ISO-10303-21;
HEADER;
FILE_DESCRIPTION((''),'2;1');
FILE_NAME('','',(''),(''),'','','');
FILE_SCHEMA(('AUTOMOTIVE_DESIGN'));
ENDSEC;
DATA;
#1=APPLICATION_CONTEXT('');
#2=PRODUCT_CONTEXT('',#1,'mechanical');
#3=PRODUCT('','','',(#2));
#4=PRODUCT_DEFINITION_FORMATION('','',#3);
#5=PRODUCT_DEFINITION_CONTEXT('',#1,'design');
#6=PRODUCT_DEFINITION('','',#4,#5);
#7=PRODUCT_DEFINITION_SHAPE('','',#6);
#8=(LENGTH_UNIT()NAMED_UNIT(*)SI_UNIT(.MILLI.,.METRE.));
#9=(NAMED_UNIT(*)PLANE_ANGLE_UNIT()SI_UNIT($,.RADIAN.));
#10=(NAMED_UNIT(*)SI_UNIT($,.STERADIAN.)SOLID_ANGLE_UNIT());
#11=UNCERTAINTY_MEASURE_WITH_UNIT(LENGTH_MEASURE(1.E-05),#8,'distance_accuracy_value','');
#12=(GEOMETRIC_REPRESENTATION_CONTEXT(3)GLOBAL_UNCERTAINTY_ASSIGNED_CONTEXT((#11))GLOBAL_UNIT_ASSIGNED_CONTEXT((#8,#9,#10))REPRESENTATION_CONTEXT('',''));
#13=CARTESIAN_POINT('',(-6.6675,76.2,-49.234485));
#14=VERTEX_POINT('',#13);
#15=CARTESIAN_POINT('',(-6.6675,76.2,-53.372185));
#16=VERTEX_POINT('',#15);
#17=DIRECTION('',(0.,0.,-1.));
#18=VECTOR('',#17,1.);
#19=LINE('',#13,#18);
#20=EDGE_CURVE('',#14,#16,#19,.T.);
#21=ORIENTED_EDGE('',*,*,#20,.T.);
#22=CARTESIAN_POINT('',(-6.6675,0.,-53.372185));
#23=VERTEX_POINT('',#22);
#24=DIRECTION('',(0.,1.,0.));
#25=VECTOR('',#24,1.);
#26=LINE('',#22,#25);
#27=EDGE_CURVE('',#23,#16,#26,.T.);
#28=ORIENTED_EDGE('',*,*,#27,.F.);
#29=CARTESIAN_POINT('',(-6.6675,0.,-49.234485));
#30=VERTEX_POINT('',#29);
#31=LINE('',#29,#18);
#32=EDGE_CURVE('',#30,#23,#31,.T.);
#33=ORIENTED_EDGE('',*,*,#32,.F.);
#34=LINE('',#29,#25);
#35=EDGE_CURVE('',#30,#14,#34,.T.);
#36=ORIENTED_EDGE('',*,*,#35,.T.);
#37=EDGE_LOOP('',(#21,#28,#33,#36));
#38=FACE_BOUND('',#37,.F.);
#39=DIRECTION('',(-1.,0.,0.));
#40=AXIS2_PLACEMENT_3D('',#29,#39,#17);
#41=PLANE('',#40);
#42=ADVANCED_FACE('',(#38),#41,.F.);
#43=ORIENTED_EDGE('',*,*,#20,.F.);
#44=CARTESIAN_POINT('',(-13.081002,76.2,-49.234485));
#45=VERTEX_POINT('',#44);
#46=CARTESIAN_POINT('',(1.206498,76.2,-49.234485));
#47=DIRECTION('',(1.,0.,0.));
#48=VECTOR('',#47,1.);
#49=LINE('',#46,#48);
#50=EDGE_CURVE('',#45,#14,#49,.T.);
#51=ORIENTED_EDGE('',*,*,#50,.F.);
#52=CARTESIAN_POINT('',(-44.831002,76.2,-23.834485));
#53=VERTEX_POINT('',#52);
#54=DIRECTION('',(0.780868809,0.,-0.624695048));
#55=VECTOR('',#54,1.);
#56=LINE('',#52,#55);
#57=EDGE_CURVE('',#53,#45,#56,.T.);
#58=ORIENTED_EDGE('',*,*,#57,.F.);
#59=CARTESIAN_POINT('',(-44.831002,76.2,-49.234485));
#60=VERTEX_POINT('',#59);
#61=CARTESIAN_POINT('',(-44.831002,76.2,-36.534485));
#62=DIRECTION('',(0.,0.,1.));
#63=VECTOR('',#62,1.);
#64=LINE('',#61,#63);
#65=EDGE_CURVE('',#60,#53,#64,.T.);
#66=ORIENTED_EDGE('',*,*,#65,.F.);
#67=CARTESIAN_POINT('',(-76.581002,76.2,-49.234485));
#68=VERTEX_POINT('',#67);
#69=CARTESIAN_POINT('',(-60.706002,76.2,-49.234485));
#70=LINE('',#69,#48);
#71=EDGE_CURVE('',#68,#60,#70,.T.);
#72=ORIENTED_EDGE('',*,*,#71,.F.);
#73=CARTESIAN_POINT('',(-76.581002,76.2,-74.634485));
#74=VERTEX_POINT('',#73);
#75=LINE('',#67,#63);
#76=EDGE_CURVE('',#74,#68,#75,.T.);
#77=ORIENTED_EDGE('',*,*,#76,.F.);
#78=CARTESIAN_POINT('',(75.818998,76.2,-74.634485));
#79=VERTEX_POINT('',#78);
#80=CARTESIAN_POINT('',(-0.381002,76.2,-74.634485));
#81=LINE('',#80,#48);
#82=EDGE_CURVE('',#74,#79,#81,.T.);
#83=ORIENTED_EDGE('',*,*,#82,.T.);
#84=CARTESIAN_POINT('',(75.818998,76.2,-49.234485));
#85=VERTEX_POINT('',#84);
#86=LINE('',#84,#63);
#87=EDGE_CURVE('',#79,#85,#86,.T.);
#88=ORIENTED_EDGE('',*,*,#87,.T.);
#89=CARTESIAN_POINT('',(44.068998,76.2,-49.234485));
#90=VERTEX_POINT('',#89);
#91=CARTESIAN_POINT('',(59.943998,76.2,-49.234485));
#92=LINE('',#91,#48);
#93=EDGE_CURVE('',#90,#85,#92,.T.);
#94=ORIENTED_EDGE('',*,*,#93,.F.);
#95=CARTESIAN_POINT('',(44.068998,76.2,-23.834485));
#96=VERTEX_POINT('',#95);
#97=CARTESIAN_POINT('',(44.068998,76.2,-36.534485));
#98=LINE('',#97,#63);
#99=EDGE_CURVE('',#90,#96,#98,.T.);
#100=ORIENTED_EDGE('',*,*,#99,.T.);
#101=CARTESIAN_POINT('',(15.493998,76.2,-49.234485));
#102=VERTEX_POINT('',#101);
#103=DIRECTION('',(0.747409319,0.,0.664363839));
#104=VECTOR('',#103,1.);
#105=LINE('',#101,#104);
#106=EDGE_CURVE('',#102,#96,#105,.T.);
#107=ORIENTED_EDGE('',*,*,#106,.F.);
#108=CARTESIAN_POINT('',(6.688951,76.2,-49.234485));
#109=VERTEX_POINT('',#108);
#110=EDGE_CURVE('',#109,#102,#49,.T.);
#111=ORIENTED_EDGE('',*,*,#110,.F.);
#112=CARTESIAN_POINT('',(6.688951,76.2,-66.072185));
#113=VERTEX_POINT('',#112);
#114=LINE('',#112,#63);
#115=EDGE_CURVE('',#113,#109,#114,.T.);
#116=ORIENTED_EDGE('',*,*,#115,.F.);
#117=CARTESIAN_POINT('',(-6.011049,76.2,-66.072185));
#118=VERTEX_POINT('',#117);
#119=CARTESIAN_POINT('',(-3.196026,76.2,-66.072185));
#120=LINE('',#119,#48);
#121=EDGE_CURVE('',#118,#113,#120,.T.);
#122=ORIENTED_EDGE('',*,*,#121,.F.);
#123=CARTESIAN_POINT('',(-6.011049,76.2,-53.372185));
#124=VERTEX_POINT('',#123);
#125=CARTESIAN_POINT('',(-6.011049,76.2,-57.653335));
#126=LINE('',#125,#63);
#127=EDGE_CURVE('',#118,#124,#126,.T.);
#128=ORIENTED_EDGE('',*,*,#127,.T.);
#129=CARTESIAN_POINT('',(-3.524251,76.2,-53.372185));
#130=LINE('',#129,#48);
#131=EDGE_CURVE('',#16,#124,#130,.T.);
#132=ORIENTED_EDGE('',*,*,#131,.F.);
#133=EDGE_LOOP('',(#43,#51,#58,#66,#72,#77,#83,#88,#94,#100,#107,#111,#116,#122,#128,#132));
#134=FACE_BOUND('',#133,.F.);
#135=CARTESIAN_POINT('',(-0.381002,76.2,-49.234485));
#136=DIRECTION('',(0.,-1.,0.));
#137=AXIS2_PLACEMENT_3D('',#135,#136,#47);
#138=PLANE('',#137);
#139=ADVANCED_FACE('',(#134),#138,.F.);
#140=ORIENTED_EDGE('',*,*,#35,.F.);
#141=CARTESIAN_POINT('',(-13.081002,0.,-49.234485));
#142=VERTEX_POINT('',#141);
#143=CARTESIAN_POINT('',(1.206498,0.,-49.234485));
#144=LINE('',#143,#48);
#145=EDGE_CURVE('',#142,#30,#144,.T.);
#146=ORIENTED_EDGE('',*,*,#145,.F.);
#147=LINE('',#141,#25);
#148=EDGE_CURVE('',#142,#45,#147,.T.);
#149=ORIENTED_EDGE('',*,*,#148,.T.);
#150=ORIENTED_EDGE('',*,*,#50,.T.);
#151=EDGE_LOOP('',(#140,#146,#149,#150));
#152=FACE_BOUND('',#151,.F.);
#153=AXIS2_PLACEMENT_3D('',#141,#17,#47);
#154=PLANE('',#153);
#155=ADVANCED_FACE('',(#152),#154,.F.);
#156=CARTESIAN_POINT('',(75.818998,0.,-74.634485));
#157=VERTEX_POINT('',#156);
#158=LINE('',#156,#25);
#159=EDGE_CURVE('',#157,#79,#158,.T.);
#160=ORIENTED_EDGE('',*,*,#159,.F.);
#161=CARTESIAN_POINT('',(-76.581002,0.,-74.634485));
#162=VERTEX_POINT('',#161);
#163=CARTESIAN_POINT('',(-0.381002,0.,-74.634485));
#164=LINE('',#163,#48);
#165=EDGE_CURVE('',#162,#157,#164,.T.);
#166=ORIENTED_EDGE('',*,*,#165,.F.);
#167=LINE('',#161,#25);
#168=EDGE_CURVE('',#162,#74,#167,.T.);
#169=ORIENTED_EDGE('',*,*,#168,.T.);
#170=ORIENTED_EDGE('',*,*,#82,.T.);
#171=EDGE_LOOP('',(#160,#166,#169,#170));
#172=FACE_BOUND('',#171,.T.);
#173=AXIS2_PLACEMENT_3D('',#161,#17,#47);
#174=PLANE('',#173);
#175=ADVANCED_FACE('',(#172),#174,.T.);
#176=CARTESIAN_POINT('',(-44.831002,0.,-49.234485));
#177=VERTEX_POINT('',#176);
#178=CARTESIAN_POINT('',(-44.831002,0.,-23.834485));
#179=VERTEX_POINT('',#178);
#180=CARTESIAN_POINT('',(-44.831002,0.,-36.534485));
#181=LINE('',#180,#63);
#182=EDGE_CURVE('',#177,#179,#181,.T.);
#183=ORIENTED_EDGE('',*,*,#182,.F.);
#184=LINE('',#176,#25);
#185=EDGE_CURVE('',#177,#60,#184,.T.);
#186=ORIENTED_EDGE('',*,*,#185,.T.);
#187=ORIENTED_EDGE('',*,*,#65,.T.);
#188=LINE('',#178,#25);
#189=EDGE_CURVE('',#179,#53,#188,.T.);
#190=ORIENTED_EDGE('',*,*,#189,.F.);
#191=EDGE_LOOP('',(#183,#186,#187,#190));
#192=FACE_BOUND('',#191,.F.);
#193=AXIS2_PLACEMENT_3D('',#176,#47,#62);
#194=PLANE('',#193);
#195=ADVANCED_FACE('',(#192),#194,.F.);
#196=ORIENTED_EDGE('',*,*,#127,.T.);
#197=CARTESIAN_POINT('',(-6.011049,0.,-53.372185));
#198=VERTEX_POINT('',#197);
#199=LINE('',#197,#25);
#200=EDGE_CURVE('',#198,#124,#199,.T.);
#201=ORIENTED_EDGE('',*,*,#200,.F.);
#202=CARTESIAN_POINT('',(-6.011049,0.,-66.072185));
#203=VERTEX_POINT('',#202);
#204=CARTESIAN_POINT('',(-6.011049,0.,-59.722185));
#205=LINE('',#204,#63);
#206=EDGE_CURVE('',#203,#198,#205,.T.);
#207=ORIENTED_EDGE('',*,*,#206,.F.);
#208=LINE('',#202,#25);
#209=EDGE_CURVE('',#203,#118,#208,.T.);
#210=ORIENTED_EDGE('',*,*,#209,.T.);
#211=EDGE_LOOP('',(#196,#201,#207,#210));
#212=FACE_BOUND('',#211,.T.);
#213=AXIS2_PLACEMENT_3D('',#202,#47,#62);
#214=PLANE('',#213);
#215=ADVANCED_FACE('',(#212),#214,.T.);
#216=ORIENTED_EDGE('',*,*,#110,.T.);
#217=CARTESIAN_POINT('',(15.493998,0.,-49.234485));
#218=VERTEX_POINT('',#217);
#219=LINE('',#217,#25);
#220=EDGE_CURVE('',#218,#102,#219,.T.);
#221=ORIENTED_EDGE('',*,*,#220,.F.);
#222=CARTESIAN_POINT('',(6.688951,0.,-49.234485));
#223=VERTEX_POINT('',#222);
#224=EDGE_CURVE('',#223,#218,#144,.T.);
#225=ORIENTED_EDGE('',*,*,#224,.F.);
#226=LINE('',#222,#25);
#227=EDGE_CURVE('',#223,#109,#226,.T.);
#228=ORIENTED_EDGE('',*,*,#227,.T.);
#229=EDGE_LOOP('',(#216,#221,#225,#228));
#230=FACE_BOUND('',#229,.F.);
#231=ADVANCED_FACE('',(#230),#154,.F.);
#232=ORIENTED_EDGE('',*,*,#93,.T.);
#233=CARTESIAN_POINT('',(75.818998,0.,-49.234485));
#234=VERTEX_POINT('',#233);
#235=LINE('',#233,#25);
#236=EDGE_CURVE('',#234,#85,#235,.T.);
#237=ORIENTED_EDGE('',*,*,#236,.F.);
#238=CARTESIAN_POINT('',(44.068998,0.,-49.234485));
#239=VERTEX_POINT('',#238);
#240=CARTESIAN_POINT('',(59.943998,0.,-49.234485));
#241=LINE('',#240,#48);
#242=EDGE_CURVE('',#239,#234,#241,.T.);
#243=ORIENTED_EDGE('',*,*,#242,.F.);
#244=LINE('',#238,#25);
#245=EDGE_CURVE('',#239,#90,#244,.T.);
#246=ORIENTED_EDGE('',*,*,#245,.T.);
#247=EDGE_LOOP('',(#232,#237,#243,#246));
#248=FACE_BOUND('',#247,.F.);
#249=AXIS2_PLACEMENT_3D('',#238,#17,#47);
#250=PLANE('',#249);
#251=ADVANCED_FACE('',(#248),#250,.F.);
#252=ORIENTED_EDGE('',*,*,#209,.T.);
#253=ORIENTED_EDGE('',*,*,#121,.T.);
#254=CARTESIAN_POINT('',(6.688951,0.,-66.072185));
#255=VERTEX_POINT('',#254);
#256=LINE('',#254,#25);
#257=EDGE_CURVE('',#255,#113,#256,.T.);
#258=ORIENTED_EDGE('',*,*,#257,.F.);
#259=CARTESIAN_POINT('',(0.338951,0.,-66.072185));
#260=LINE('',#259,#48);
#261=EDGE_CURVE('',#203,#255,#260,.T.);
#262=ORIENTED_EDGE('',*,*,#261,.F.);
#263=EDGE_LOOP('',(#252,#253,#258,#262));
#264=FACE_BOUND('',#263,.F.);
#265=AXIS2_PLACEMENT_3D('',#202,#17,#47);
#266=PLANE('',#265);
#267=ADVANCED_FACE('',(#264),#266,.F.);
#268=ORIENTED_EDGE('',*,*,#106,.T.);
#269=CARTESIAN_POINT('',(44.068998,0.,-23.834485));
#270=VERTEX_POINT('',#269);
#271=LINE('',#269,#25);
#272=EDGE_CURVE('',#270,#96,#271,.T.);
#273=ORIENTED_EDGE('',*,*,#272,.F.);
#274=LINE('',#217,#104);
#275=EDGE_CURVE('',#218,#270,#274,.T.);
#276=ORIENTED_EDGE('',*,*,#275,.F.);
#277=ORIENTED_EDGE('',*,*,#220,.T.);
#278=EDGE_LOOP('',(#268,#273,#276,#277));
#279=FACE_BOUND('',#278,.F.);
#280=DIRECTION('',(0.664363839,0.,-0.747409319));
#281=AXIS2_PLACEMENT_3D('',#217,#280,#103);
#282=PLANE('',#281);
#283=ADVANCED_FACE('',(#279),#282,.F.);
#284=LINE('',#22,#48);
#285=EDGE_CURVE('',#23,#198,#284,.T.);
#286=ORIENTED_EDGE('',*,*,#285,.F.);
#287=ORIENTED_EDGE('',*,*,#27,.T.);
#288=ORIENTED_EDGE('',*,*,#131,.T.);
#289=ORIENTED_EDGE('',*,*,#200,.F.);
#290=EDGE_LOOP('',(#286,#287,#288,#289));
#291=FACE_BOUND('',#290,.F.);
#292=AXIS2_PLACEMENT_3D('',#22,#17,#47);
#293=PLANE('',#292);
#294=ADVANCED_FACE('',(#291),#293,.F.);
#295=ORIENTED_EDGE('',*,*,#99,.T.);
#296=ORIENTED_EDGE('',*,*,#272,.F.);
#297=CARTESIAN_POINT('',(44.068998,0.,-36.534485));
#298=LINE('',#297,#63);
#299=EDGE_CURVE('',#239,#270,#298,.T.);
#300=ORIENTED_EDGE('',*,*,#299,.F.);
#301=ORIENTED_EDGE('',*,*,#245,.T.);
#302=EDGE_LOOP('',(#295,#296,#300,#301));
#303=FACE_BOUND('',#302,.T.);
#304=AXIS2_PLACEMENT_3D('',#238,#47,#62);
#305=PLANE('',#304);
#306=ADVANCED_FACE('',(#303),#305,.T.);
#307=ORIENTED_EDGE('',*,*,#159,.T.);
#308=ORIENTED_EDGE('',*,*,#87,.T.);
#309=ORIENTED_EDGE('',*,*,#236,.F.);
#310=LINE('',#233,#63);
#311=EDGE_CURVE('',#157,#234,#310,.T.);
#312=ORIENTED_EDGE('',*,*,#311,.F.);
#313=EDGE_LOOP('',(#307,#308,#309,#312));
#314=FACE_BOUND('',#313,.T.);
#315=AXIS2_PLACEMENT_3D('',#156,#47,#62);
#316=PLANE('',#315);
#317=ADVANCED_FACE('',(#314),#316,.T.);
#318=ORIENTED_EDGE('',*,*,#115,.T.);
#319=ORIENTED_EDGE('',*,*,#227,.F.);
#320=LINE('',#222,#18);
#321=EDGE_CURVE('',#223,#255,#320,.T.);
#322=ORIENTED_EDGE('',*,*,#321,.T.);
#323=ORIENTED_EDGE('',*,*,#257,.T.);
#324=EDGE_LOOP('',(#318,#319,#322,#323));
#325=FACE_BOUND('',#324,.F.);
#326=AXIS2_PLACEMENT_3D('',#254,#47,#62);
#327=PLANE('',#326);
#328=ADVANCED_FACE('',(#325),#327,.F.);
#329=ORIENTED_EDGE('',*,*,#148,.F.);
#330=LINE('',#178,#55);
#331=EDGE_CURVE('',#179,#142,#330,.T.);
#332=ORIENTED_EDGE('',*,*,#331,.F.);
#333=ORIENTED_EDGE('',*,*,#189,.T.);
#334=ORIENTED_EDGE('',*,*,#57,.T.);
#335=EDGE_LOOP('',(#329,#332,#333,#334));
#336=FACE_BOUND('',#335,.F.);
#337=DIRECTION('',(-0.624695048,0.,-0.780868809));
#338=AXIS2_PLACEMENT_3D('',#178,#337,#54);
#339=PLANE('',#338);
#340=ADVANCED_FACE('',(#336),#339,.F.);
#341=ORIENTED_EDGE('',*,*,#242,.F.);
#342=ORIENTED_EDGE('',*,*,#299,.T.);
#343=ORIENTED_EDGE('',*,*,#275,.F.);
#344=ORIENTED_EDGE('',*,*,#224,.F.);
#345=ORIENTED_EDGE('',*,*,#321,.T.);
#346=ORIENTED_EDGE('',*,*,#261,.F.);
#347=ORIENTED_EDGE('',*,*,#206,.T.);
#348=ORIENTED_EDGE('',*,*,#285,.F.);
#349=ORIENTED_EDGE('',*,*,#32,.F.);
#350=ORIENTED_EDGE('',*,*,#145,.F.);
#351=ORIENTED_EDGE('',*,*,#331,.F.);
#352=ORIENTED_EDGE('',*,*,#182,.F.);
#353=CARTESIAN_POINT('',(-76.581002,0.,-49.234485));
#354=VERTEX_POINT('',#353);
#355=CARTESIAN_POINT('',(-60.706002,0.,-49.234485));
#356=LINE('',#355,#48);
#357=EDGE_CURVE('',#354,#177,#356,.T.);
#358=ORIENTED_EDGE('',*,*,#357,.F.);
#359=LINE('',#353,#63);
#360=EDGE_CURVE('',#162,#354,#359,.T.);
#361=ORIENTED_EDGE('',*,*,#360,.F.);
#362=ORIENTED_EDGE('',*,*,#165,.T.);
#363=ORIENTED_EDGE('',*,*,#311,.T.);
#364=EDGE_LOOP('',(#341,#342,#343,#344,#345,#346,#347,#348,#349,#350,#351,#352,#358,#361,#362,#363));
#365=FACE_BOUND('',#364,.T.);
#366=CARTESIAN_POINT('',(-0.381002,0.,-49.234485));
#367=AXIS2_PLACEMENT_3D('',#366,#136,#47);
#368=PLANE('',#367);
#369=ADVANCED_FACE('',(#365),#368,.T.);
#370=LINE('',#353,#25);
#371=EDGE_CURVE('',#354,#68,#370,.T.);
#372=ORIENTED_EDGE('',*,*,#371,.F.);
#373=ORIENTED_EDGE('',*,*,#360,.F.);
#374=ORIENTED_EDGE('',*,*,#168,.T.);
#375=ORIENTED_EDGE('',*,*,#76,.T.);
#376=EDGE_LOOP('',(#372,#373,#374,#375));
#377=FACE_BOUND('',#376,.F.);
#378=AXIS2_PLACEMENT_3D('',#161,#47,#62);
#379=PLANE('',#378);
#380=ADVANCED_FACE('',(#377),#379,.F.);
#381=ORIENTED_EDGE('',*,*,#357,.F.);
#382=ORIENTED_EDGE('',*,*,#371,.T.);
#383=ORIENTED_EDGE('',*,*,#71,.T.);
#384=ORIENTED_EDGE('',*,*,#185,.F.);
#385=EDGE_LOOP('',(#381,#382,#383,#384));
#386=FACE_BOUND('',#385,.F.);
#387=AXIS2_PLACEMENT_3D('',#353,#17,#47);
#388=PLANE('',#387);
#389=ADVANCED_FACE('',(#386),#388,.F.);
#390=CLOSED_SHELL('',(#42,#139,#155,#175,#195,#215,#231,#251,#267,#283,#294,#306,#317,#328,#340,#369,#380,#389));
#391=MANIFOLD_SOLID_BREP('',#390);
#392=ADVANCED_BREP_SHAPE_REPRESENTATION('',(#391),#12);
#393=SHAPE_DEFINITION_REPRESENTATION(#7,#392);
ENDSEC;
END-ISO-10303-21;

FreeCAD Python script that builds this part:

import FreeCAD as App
import Part
import Sketcher

V = App.Vector
Q = App.Units.Quantity


def add_polygon(sketch, points):
    """Adds a closed chain of lines whose ends are joined by coincident constraints."""
    first, n = sketch.GeometryCount, len(points)
    for a, b in zip(points, points[1:] + points[:1]):
        sketch.addGeometry(Part.LineSegment(App.Vector(*a, 0), App.Vector(*b, 0)), False)
    for i in range(n):
        sketch.addConstraint(Sketcher.Constraint("Coincident", first + i, 2, first + (i + 1) % n, 1))

doc = App.newDocument("Part")
body = doc.addObject("PartDesign::Body", "Body")

sketch1 = doc.addObject("Sketcher::SketchObject", "Sketch")
body.addObject(sketch1)
sketch1.AttachmentSupport = (doc.XZ_Plane, [""])
sketch1.MapMode = "FlatFace"
add_polygon(sketch1, [(-76.581002, -23.834485), (-76.581002, -74.634485), (75.818998, -74.634485), (75.818998, -23.834485)])
sketch1.addConstraint(Sketcher.Constraint("Vertical", 0))
sketch1.addConstraint(Sketcher.Constraint("Horizontal", 1))
sketch1.addConstraint(Sketcher.Constraint("Vertical", 2))
sketch1.addConstraint(Sketcher.Constraint("Horizontal", 3))
sketch1.addConstraint(Sketcher.Constraint("DistanceX", 1, 1, 1, 2, Q("6 in")))
sketch1.addConstraint(Sketcher.Constraint("DistanceY", 0, 2, 0, 1, Q("2 in")))
sketch1.addConstraint(Sketcher.Constraint("DistanceX", 0, 2, -1, 1, Q("3.0150001 in")))
sketch1.addConstraint(Sketcher.Constraint("DistanceY", 0, 2, -1, 1, 74.634485))
pad1 = doc.addObject("PartDesign::Pad", "Pad")
body.addObject(pad1)
pad1.Profile = sketch1
pad1.Length = Q("3 in")
pad1.Reversed = True

sketch2 = doc.addObject("Sketcher::SketchObject", "Sketch001")
body.addObject(sketch2)
sketch2.AttachmentSupport = (doc.XZ_Plane, [""])
sketch2.MapMode = "FlatFace"
add_polygon(sketch2, [(-76.581002, -23.834485), (-76.581002, -49.234485), (-44.831002, -49.234485), (-44.831002, -23.834485)])
sketch2.addConstraint(Sketcher.Constraint("Vertical", 0))
sketch2.addConstraint(Sketcher.Constraint("Horizontal", 1))
sketch2.addConstraint(Sketcher.Constraint("Vertical", 2))
sketch2.addConstraint(Sketcher.Constraint("Horizontal", 3))
sketch2.addConstraint(Sketcher.Constraint("DistanceY", 0, 2, 0, 1, Q("1 in")))
sketch2.addConstraint(Sketcher.Constraint("DistanceX", 1, 1, 1, 2, Q("1.25 in")))
sketch2.addConstraint(Sketcher.Constraint("DistanceX", 0, 2, -1, 1, Q("3.0150001 in")))
sketch2.addConstraint(Sketcher.Constraint("DistanceY", 0, 2, -1, 1, 49.234485))
pocket1 = doc.addObject("PartDesign::Pocket", "Pocket")
body.addObject(pocket1)
pocket1.Profile = sketch2
pocket1.Length = Q("3 in")

sketch3 = doc.addObject("Sketcher::SketchObject", "Sketch002")
body.addObject(sketch3)
sketch3.AttachmentSupport = (doc.XZ_Plane, [""])
sketch3.MapMode = "FlatFace"
add_polygon(sketch3, [(44.068998, -23.834485), (44.068998, -49.234485), (75.818998, -49.234485), (75.818998, -23.834485)])
sketch3.addConstraint(Sketcher.Constraint("Vertical", 0))
sketch3.addConstraint(Sketcher.Constraint("Horizontal", 1))
sketch3.addConstraint(Sketcher.Constraint("Vertical", 2))
sketch3.addConstraint(Sketcher.Constraint("Horizontal", 3))
sketch3.addConstraint(Sketcher.Constraint("DistanceY", 0, 2, 0, 1, Q("1 in")))
sketch3.addConstraint(Sketcher.Constraint("DistanceX", 1, 1, 1, 2, Q("1.25 in")))
sketch3.addConstraint(Sketcher.Constraint("DistanceX", -1, 1, 0, 2, Q("1.7349999 in")))
sketch3.addConstraint(Sketcher.Constraint("DistanceY", 0, 2, -1, 1, 49.234485))
pocket2 = doc.addObject("PartDesign::Pocket", "Pocket001")
body.addObject(pocket2)
pocket2.Profile = sketch3
pocket2.Length = Q("3 in")

sketch4 = doc.addObject("Sketcher::SketchObject", "Sketch003")
body.addObject(sketch4)
sketch4.AttachmentSupport = (doc.XZ_Plane, [""])
sketch4.MapMode = "FlatFace"
add_polygon(sketch4, [(-13.081002, -23.834485), (-44.831002, -23.834485), (-13.081002, -49.234485)])
sketch4.addConstraint(Sketcher.Constraint("Horizontal", 0))
sketch4.addConstraint(Sketcher.Constraint("Vertical", 2))
sketch4.addConstraint(Sketcher.Constraint("DistanceY", 2, 1, 2, 2, Q("1 in")))
sketch4.addConstraint(Sketcher.Constraint("DistanceX", 0, 2, 0, 1, Q("1.25 in")))
sketch4.addConstraint(Sketcher.Constraint("DistanceX", 0, 2, -1, 1, Q("1.7650001 in")))
sketch4.addConstraint(Sketcher.Constraint("DistanceY", 0, 2, -1, 1, 23.834485))
pocket3 = doc.addObject("PartDesign::Pocket", "Pocket002")
body.addObject(pocket3)
pocket3.Profile = sketch4
pocket3.Length = Q("3 in")

sketch5 = doc.addObject("Sketcher::SketchObject", "Sketch004")
body.addObject(sketch5)
sketch5.AttachmentSupport = (doc.XZ_Plane, [""])
sketch5.MapMode = "FlatFace"
add_polygon(sketch5, [(44.068998, -23.834485), (15.493998, -23.834485), (15.493998, -49.234485)])
sketch5.addConstraint(Sketcher.Constraint("Horizontal", 0))
sketch5.addConstraint(Sketcher.Constraint("Vertical", 1))
sketch5.addConstraint(Sketcher.Constraint("DistanceY", 1, 2, 1, 1, Q("1 in")))
sketch5.addConstraint(Sketcher.Constraint("DistanceX", 0, 2, 0, 1, Q("1.125 in")))
sketch5.addConstraint(Sketcher.Constraint("DistanceX", -1, 1, 0, 2, Q("0.6099999 in")))
sketch5.addConstraint(Sketcher.Constraint("DistanceY", 0, 2, -1, 1, 23.834485))
pocket4 = doc.addObject("PartDesign::Pocket", "Pocket003")
body.addObject(pocket4)
pocket4.Profile = sketch5
pocket4.Length = Q("3 in")

sketch6 = doc.addObject("Sketcher::SketchObject", "Sketch005")
body.addObject(sketch6)
sketch6.AttachmentSupport = (doc.XZ_Plane, [""])
sketch6.MapMode = "FlatFace"
add_polygon(sketch6, [(-13.081002, -23.834485), (-13.081002, -49.234485), (15.493998, -49.234485), (15.493998, -23.834485)])
sketch6.addConstraint(Sketcher.Constraint("Vertical", 0))
sketch6.addConstraint(Sketcher.Constraint("Horizontal", 1))
sketch6.addConstraint(Sketcher.Constraint("Vertical", 2))
sketch6.addConstraint(Sketcher.Constraint("Horizontal", 3))
sketch6.addConstraint(Sketcher.Constraint("DistanceY", 0, 2, 0, 1, Q("1 in")))
sketch6.addConstraint(Sketcher.Constraint("DistanceX", 1, 1, 1, 2, Q("1.125 in")))
sketch6.addConstraint(Sketcher.Constraint("DistanceX", -1, 1, 1, 2, Q("0.6099999 in")))
sketch6.addConstraint(Sketcher.Constraint("DistanceY", 0, 2, -1, 1, 49.234485))
pocket5 = doc.addObject("PartDesign::Pocket", "Pocket004")
body.addObject(pocket5)
pocket5.Profile = sketch6
pocket5.Length = Q("3 in")

sketch7 = doc.addObject("Sketcher::SketchObject", "Sketch006")
body.addObject(sketch7)
sketch7.AttachmentSupport = (doc.XZ_Plane, [""])
sketch7.MapMode = "FlatFace"
add_polygon(sketch7, [(-6.011049, -53.372185), (-6.011049, -66.072185), (6.688951, -66.072185), (6.688951, -53.372185)])
sketch7.addConstraint(Sketcher.Constraint("Vertical", 0))
sketch7.addConstraint(Sketcher.Constraint("Horizontal", 1))
sketch7.addConstraint(Sketcher.Constraint("Vertical", 2))
sketch7.addConstraint(Sketcher.Constraint("Horizontal", 3))
sketch7.addConstraint(Sketcher.Constraint("Equal", 3, 0))
sketch7.addConstraint(Sketcher.Constraint("DistanceX", 1, 1, 1, 2, Q("0.5 in")))
sketch7.addConstraint(Sketcher.Constraint("DistanceX", 0, 2, -1, 1, 6.011049))
sketch7.addConstraint(Sketcher.Constraint("DistanceY", 0, 2, -1, 1, 66.072185))
pocket6 = doc.addObject("PartDesign::Pocket", "Pocket005")
body.addObject(pocket6)
pocket6.Profile = sketch7
pocket6.Length = Q("4 in")

sketch8 = doc.addObject("Sketcher::SketchObject", "Sketch007")
body.addObject(sketch8)
sketch8.AttachmentSupport = (doc.XZ_Plane, [""])
sketch8.MapMode = "FlatFace"
add_polygon(sketch8, [(6.688951, -49.234485), (-6.6675, -49.234485), (-6.6675, -53.372185), (6.688951, -53.372185)])
sketch8.addConstraint(Sketcher.Constraint("Horizontal", 0))
sketch8.addConstraint(Sketcher.Constraint("Vertical", 1))
sketch8.addConstraint(Sketcher.Constraint("Horizontal", 2))
sketch8.addConstraint(Sketcher.Constraint("Vertical", 3))
sketch8.addConstraint(Sketcher.Constraint("DistanceY", 1, 2, 1, 1, 4.1377))
sketch8.addConstraint(Sketcher.Constraint("DistanceX", 0, 2, -1, 1, Q("0.2625 in")))
sketch8.addConstraint(Sketcher.Constraint("DistanceX", 0, 2, 0, 1, 13.356451))
sketch8.addConstraint(Sketcher.Constraint("DistanceY", 0, 2, -1, 1, 49.234485))
pocket7 = doc.addObject("PartDesign::Pocket", "Pocket006")
body.addObject(pocket7)
pocket7.Profile = sketch8
pocket7.Length = Q("4 in")

doc.recompute()
